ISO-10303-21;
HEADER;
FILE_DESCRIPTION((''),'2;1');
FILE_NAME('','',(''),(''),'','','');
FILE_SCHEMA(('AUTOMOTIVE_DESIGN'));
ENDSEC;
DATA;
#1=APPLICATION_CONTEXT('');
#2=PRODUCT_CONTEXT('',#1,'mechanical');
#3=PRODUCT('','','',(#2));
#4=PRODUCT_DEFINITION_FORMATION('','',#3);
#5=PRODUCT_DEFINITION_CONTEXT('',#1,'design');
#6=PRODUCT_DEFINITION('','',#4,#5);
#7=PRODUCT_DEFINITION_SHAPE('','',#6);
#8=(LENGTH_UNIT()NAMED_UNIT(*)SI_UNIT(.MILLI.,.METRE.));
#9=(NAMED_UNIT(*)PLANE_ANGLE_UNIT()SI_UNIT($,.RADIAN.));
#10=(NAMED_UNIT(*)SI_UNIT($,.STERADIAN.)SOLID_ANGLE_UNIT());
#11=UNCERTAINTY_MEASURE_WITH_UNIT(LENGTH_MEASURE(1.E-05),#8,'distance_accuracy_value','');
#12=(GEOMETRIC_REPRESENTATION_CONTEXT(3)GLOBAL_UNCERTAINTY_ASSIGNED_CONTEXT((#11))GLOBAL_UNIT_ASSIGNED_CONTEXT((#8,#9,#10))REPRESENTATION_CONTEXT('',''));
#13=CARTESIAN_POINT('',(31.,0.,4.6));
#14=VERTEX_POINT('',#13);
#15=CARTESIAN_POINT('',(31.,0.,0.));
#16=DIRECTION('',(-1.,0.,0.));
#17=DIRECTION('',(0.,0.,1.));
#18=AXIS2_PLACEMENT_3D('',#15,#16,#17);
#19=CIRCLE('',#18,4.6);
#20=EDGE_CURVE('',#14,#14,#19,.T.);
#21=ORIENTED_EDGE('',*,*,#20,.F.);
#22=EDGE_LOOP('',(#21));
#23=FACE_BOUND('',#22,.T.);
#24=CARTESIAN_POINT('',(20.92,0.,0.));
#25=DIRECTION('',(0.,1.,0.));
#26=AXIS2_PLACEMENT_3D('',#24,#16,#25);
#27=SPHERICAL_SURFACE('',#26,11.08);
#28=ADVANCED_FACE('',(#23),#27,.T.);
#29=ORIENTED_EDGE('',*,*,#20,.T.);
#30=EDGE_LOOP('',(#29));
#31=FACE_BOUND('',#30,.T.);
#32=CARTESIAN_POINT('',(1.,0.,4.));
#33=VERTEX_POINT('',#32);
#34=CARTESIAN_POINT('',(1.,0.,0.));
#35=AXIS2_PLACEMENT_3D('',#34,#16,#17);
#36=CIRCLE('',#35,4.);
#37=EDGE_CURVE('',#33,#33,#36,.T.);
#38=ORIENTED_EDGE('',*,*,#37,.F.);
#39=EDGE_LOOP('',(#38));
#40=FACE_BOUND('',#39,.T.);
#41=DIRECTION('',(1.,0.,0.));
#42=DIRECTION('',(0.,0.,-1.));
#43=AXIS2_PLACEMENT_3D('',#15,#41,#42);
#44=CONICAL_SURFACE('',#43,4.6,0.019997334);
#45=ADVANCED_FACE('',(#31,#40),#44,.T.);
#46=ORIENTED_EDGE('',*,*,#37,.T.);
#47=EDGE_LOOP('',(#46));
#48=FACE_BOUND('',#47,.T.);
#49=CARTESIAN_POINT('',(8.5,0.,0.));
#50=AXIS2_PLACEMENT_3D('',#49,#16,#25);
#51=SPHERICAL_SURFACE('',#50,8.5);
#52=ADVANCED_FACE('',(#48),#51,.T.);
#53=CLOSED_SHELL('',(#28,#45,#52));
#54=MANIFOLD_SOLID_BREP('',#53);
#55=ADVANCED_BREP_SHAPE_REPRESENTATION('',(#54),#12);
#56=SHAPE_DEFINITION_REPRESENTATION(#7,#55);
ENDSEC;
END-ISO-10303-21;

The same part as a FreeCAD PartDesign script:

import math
import FreeCAD as App
import Part
import Sketcher

doc = App.newDocument("Part")
params = doc.addObject("Spreadsheet::Sheet", "Params")
for row, (alias, value) in enumerate([
    ("sketch1_radius", "8.5 mm"),
    ("sketch1_width", "32 mm"),
    ("sketch1_radius2", "11.08 mm"),
    ("revolution_angle", "360 deg"),
], start=1):
    params.set(f"A{row}", alias)
    params.set(f"B{row}", "=" + value)
    params.setAlias(f"B{row}", alias)

body = doc.addObject("PartDesign::Body", "Body")

# Sketch on XY plane
sketch1 = body.newObject("Sketcher::SketchObject", "Sketch")
sketch1.AttachmentSupport = (doc.getObject("XY_Plane"), [""])
sketch1.MapMode = "FlatFace"
sketch1.addGeometry([
    Part.LineSegment(App.Vector(0, 0, 0), App.Vector(32, 0, 0)),
    Part.ArcOfCircle(Part.Circle(App.Vector(20.92, 0, 0), App.Vector(0, 0, 1), 11.08), math.radians(0), math.radians(24.529547)),
    Part.LineSegment(App.Vector(31, 4.6, 0), App.Vector(1, 4, 0)),
    Part.ArcOfCircle(Part.Circle(App.Vector(8.5, 0, 0), App.Vector(0, 0, 1), 8.5), math.radians(151.927513), math.radians(180)),
], False)
sketch1.addConstraint([
    Sketcher.Constraint("Coincident", 0, 2, 1, 1),
    Sketcher.Constraint("Coincident", 1, 2, 2, 1),
    Sketcher.Constraint("Coincident", 2, 2, 3, 1),
    Sketcher.Constraint("Coincident", 3, 2, 0, 1),
    Sketcher.Constraint("Horizontal", 0),
    Sketcher.Constraint("Coincident", 3, 2, -1, 1),
    Sketcher.Constraint("PointOnObject", 1, 3, -1),
    Sketcher.Constraint("PointOnObject", 3, 3, -1),
    Sketcher.Constraint("Radius", 3, 8.5),
    Sketcher.Constraint("DistanceX", 0, 1, 0, 2, 32.0),
    Sketcher.Constraint("Radius", 1, 11.08),
    Sketcher.Constraint("DistanceX", -1, 1, 1, 2, 31.0),
    Sketcher.Constraint("DistanceX", -1, 1, 2, 2, 1.0),
])
sketch1.setExpression("Constraints[8]", "Params.sketch1_radius")
sketch1.setExpression("Constraints[9]", "Params.sketch1_width")
sketch1.setExpression("Constraints[10]", "Params.sketch1_radius2")
revolution = body.newObject("PartDesign::Revolution", "Revolution")
revolution.Profile = sketch1
revolution.ReferenceAxis = (sketch1, ["H_Axis"])
revolution.setExpression("Angle", "Params.revolution_angle")

doc.recompute()
